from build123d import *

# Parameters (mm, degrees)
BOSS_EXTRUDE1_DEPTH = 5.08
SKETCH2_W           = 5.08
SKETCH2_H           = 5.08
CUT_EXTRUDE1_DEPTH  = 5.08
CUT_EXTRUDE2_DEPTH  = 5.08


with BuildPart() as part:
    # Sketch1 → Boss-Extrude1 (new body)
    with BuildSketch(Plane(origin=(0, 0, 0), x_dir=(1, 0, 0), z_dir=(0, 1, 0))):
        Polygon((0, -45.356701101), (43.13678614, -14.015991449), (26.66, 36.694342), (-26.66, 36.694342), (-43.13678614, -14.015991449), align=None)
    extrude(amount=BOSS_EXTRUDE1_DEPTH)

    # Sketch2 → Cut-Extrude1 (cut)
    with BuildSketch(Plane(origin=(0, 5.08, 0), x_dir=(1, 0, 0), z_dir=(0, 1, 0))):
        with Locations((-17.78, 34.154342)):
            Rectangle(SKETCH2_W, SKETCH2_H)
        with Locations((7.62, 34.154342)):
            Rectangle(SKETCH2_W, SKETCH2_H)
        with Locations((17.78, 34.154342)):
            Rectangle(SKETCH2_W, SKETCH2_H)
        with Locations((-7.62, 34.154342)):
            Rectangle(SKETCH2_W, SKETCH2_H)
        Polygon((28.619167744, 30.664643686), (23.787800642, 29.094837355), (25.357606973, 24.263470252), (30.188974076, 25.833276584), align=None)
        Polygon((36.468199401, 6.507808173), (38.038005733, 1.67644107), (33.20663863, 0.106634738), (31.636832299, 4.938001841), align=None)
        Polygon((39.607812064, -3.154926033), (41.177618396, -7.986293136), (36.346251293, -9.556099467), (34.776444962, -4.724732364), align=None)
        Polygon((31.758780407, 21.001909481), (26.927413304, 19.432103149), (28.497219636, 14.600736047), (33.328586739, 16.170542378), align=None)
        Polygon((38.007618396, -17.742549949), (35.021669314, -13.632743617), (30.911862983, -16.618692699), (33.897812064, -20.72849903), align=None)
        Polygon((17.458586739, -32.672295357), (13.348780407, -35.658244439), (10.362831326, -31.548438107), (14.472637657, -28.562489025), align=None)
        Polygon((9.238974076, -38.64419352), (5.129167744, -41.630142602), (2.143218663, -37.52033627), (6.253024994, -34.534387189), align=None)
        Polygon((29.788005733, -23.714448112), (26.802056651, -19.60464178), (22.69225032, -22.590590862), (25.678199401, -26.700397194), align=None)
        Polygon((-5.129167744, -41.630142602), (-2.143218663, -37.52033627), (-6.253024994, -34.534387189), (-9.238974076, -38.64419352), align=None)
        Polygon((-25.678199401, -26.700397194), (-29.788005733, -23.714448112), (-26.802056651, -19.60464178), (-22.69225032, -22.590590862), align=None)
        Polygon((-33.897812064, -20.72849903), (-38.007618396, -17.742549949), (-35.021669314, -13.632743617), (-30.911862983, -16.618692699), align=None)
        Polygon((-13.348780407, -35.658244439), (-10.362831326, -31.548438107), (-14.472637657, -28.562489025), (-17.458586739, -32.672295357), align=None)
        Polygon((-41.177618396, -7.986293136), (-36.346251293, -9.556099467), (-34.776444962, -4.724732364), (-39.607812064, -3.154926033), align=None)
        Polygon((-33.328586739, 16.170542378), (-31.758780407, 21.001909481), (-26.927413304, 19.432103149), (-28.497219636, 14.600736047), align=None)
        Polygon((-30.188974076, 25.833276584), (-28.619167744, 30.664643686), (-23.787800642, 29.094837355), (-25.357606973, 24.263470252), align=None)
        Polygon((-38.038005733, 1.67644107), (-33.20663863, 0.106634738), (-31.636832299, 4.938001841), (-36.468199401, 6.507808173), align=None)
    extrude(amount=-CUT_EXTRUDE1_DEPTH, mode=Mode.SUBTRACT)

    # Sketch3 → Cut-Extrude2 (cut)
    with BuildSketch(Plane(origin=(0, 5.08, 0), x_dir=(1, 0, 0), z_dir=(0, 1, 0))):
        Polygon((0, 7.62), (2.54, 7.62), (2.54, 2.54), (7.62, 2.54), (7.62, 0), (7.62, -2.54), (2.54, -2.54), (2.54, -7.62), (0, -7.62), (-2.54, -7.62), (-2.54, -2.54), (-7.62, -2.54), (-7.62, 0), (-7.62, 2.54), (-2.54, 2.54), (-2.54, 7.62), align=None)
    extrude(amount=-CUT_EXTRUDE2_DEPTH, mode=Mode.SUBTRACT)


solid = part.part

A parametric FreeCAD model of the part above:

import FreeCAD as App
import Part
import Sketcher
Q = App.Units.Quantity


def add_polygon(sketch, points):
    """Adds a closed chain of lines whose ends are joined by coincident constraints."""
    first, n = sketch.GeometryCount, len(points)
    for a, b in zip(points, points[1:] + points[:1]):
        sketch.addGeometry(Part.LineSegment(App.Vector(*a, 0), App.Vector(*b, 0)), False)
    for i in range(n):
        sketch.addConstraint(Sketcher.Constraint("Coincident", first + i, 2, first + (i + 1) % n, 1))

doc = App.newDocument("Part")
body = doc.addObject("PartDesign::Body", "Body")

sketch1 = doc.addObject("Sketcher::SketchObject", "Sketch")
body.addObject(sketch1)
sketch1.AttachmentSupport = (doc.XZ_Plane, [""])
sketch1.MapMode = "FlatFace"
add_polygon(sketch1, [(0, 45), (43, 14), (27, -37), (-27, -37), (-43, 14)])
sketch1.addConstraint([
    Sketcher.Constraint("Horizontal", 2),
    Sketcher.Constraint("Symmetric", 0, 2, 3, 2, -2),
    Sketcher.Constraint("PointOnObject", 4, 2, -2),
    Sketcher.Constraint("Equal", 0, 1),
    Sketcher.Constraint("Equal", 1, 3),
    Sketcher.Constraint("Angle", 0, Q("-36 deg")),
    Sketcher.Constraint("Angle", 1, Q("-108 deg")),
    Sketcher.Constraint("DistanceX", 2, 2, 2, 1, Q("53.32 mm")),
    Sketcher.Constraint("DistanceY", -1, 1, 4, 2, Q("45.356701 mm")),
])
pad1 = doc.addObject("PartDesign::Pad", "Pad")
body.addObject(pad1)
pad1.Profile = sketch1
pad1.Length = Q("0.2 in")
pad1.Reversed = True

sketch2 = doc.addObject("Sketcher::SketchObject", "Sketch001")
body.addObject(sketch2)
sketch2.AttachmentSupport = (doc.XZ_Plane, [""])
sketch2.MapMode = "FlatFace"
sketch2.AttachmentOffset = App.Placement(App.Vector(0, 0, -0.2 * 25.4), App.Rotation())
add_polygon(sketch2, [(-20, -37), (-20, -32), (-15, -32), (-15, -37)])
add_polygon(sketch2, [(5, -37), (5, -32), (10, -32), (10, -37)])
add_polygon(sketch2, [(15, -37), (15, -32), (20, -32), (20, -37)])
add_polygon(sketch2, [(-10, -37), (-10, -32), (-5, -32), (-5, -37)])
add_polygon(sketch2, [(29, -31), (24, -29), (25, -24), (30, -26)])
add_polygon(sketch2, [(38, -2), (36, -7), (32, -5), (33, 0)])
add_polygon(sketch2, [(41, 8), (40, 3), (35, 5), (36, 10)])
add_polygon(sketch2, [(32, -21), (27, -19), (28, -15), (33, -16)])
add_polygon(sketch2, [(38, 18), (35, 14), (31, 17), (34, 21)])
add_polygon(sketch2, [(13, 36), (17, 33), (14, 29), (10, 32)])
add_polygon(sketch2, [(5, 42), (9, 39), (6, 35), (2, 38)])
add_polygon(sketch2, [(30, 24), (27, 20), (23, 23), (26, 27)])
add_polygon(sketch2, [(-5, 42), (-2, 38), (-6, 35), (-9, 39)])
add_polygon(sketch2, [(-30, 24), (-26, 27), (-23, 23), (-27, 20)])
add_polygon(sketch2, [(-38, 18), (-34, 21), (-31, 17), (-35, 14)])
add_polygon(sketch2, [(-13, 36), (-10, 32), (-14, 29), (-17, 33)])
add_polygon(sketch2, [(-41, 8), (-36, 10), (-35, 5), (-40, 3)])
add_polygon(sketch2, [(-32, -21), (-33, -16), (-28, -15), (-27, -19)])
add_polygon(sketch2, [(-29, -31), (-30, -26), (-25, -24), (-24, -29)])
add_polygon(sketch2, [(-38, -2), (-33, 0), (-32, -5), (-36, -7)])
sketch2.addConstraint([
    Sketcher.Constraint("Vertical", 0),
    Sketcher.Constraint("Horizontal", 1),
    Sketcher.Constraint("Vertical", 2),
    Sketcher.Constraint("Horizontal", 3),
    Sketcher.Constraint("Vertical", 4),
    Sketcher.Constraint("Horizontal", 5),
    Sketcher.Constraint("Vertical", 6),
    Sketcher.Constraint("Horizontal", 7),
    Sketcher.Constraint("Vertical", 8),
    Sketcher.Constraint("Horizontal", 9),
    Sketcher.Constraint("Vertical", 10),
    Sketcher.Constraint("Horizontal", 11),
    Sketcher.Constraint("Vertical", 12),
    Sketcher.Constraint("Horizontal", 13),
    Sketcher.Constraint("Vertical", 14),
    Sketcher.Constraint("Horizontal", 15),
    Sketcher.Constraint("Symmetric", 1, 2, 8, 2, -2),
    Sketcher.Constraint("Symmetric", 3, 2, 10, 2, -2),
    Sketcher.Constraint("Symmetric", 5, 2, 12, 2, -2),
    Sketcher.Constraint("Symmetric", 7, 2, 14, 2, -2),
    Sketcher.Constraint("Symmetric", 42, 2, 48, 2, -2),
    Sketcher.Constraint("Symmetric", 41, 2, 49, 2, -2),
    Sketcher.Constraint("Symmetric", 40, 2, 50, 2, -2),
    Sketcher.Constraint("Symmetric", 43, 2, 51, 2, -2),
    Sketcher.Constraint("Symmetric", 46, 2, 52, 2, -2),
    Sketcher.Constraint("Symmetric", 45, 2, 53, 2, -2),
    Sketcher.Constraint("Symmetric", 44, 2, 54, 2, -2),
    Sketcher.Constraint("Symmetric", 47, 2, 55, 2, -2),
    Sketcher.Constraint("Symmetric", 34, 2, 56, 2, -2),
    Sketcher.Constraint("Symmetric", 33, 2, 57, 2, -2),
    Sketcher.Constraint("Symmetric", 32, 2, 58, 2, -2),
    Sketcher.Constraint("Symmetric", 35, 2, 59, 2, -2),
    Sketcher.Constraint("Symmetric", 38, 2, 60, 2, -2),
    Sketcher.Constraint("Symmetric", 37, 2, 61, 2, -2),
    Sketcher.Constraint("Symmetric", 36, 2, 62, 2, -2),
    Sketcher.Constraint("Symmetric", 39, 2, 63, 2, -2),
    Sketcher.Constraint("Symmetric", 26, 2, 64, 2, -2),
    Sketcher.Constraint("Symmetric", 25, 2, 65, 2, -2),
    Sketcher.Constraint("Symmetric", 24, 2, 66, 2, -2),
    Sketcher.Constraint("Symmetric", 27, 2, 67, 2, -2),
    Sketcher.Constraint("Symmetric", 30, 2, 68, 2, -2),
    Sketcher.Constraint("Symmetric", 29, 2, 69, 2, -2),
    Sketcher.Constraint("Symmetric", 28, 2, 70, 2, -2),
    Sketcher.Constraint("Symmetric", 31, 2, 71, 2, -2),
    Sketcher.Constraint("Symmetric", 18, 2, 72, 2, -2),
    Sketcher.Constraint("Symmetric", 17, 2, 73, 2, -2),
    Sketcher.Constraint("Symmetric", 16, 2, 74, 2, -2),
    Sketcher.Constraint("Symmetric", 19, 2, 75, 2, -2),
    Sketcher.Constraint("Symmetric", 22, 2, 76, 2, -2),
    Sketcher.Constraint("Symmetric", 21, 2, 77, 2, -2),
    Sketcher.Constraint("Symmetric", 20, 2, 78, 2, -2),
    Sketcher.Constraint("Symmetric", 23, 2, 79, 2, -2),
    Sketcher.Constraint("Perpendicular", 16, 17),
    Sketcher.Constraint("Perpendicular", 17, 18),
    Sketcher.Constraint("Perpendicular", 18, 19),
    Sketcher.Constraint("Parallel", 19, 20),
    Sketcher.Constraint("Perpendicular", 20, 21),
    Sketcher.Constraint("Perpendicular", 21, 22),
    Sketcher.Constraint("Perpendicular", 22, 23),
    Sketcher.Constraint("Perpendicular", 23, 24),
    Sketcher.Constraint("Perpendicular", 24, 25),
    Sketcher.Constraint("Perpendicular", 25, 26),
    Sketcher.Constraint("Perpendicular", 26, 27),
    Sketcher.Constraint("Parallel", 27, 28),
    Sketcher.Constraint("Perpendicular", 28, 29),
    Sketcher.Constraint("Perpendicular", 29, 30),
    Sketcher.Constraint("Perpendicular", 30, 31),
    Sketcher.Constraint("Perpendicular", 32, 33),
    Sketcher.Constraint("Perpendicular", 33, 34),
    Sketcher.Constraint("Perpendicular", 34, 35),
    Sketcher.Constraint("Parallel", 35, 36),
    Sketcher.Constraint("Perpendicular", 36, 37),
    Sketcher.Constraint("Perpendicular", 37, 38),
    Sketcher.Constraint("Perpendicular", 38, 39),
    Sketcher.Constraint("Perpendicular", 39, 40),
    Sketcher.Constraint("Perpendicular", 40, 41),
    Sketcher.Constraint("Perpendicular", 41, 42),
    Sketcher.Constraint("Perpendicular", 42, 43),
    Sketcher.Constraint("Parallel", 43, 44),
    Sketcher.Constraint("Perpendicular", 44, 45),
    Sketcher.Constraint("Perpendicular", 45, 46),
    Sketcher.Constraint("Perpendicular", 46, 47),
    Sketcher.Constraint("Horizontal", 1, 2, 4, 2),
    Sketcher.Constraint("Horizontal", 3, 2, 6, 2),
    Sketcher.Constraint("Equal", 3, 5),
    Sketcher.Constraint("Equal", 15, 0),
    Sketcher.Constraint("Equal", 16, 17),
    Sketcher.Constraint("Equal", 19, 20),
    Sketcher.Constraint("Equal", 20, 21),
    Sketcher.Constraint("Equal", 23, 24),
    Sketcher.Constraint("Equal", 24, 25),
    Sketcher.Constraint("Equal", 27, 28),
    Sketcher.Constraint("Equal", 28, 29),
    Sketcher.Constraint("Equal", 31, 32),
    Sketcher.Constraint("Equal", 32, 33),
    Sketcher.Constraint("Equal", 35, 36),
    Sketcher.Constraint("Equal", 36, 37),
    Sketcher.Constraint("Equal", 39, 40),
    Sketcher.Constraint("Equal", 40, 41),
    Sketcher.Constraint("Equal", 43, 44),
    Sketcher.Constraint("Equal", 44, 45),
    Sketcher.Constraint("DistanceX", 1, 1, 1, 2, Q("0.2 in")),
    Sketcher.Constraint("Angle", 16, Q("162 deg")),
    Sketcher.Constraint("Angle", 32, Q("-126 deg")),
    Sketcher.Constraint("Distance", 16, Q("0.2 in")),
    Sketcher.Constraint("DistanceX", 0, 2, -1, 1, Q("0.8 in")),
    Sketcher.Constraint("DistanceX", -1, 1, 4, 2, Q("0.2 in")),
    Sketcher.Constraint("DistanceX", -1, 1, 16, 2, Q("23.787801 mm")),
    Sketcher.Constraint("DistanceX", -1, 1, 20, 2, Q("36.468199 mm")),
    Sketcher.Constraint("DistanceY", 21, 2, -1, 1, Q("4.938002 mm")),
    Sketcher.Constraint("DistanceY", -1, 1, 26, 2, Q("9.556099 mm")),
    Sketcher.Constraint("DistanceY", -1, 1, 34, 2, Q("20.728499 mm")),
    Sketcher.Constraint("DistanceX", -1, 1, 46, 2, Q("25.678199 mm")),
    Sketcher.Constraint("DistanceY", 17, 2, -1, 1, Q("24.26347 mm")),
    Sketcher.Constraint("DistanceX", -1, 1, 26, 2, Q("36.346251 mm")),
    Sketcher.Constraint("DistanceX", -1, 1, 29, 2, Q("28.49722 mm")),
    Sketcher.Constraint("DistanceY", 31, 2, -1, 1, Q("21.001909 mm")),
    Sketcher.Constraint("DistanceX", -1, 1, 32, 2, Q("35.021669 mm")),
    Sketcher.Constraint("DistanceY", -1, 1, 37, 2, Q("28.562489 mm")),
    Sketcher.Constraint("DistanceX", -1, 1, 38, 2, Q("10.362831 mm")),
    Sketcher.Constraint("DistanceX", -1, 1, 42, 2, Q("2.143219 mm")),
    Sketcher.Constraint("DistanceY", -1, 1, 44, 2, Q("19.604642 mm")),
    Sketcher.Constraint("DistanceY", 0, 2, -1, 1, Q("31.614342 mm")),
    Sketcher.Constraint("DistanceY", -1, 1, 40, 2, Q("38.644194 mm")),
])
pocket1 = doc.addObject("PartDesign::Pocket", "Pocket")
body.addObject(pocket1)
pocket1.Profile = sketch2
pocket1.Length = Q("0.2 in")
pocket1.Reversed = True

sketch3 = doc.addObject("Sketcher::SketchObject", "Sketch002")
body.addObject(sketch3)
sketch3.AttachmentSupport = (doc.XZ_Plane, [""])
sketch3.MapMode = "FlatFace"
sketch3.AttachmentOffset = App.Placement(App.Vector(0, 0, -0.2 * 25.4), App.Rotation())
add_polygon(sketch3, [(3, -8), (-3, -8), (-3, -3), (-8, -3), (-8, 3), (-3, 3), (-3, 8), (3, 8), (3, 3), (8, 3), (8, -3), (3, -3)])
sketch3.addConstraint([
    Sketcher.Constraint("Horizontal", 0),
    Sketcher.Constraint("Vertical", 1),
    Sketcher.Constraint("Horizontal", 2),
    Sketcher.Constraint("Vertical", 3),
    Sketcher.Constraint("Horizontal", 4),
    Sketcher.Constraint("Vertical", 5),
    Sketcher.Constraint("Horizontal", 6),
    Sketcher.Constraint("Vertical", 7),
    Sketcher.Constraint("Horizontal", 8),
    Sketcher.Constraint("Vertical", 9),
    Sketcher.Constraint("Horizontal", 10),
    Sketcher.Constraint("Vertical", 11),
    Sketcher.Constraint("Symmetric", 0, 2, 6, 2, -1, 1),
    Sketcher.Constraint("Symmetric", 2, 2, 8, 2, -1, 1),
    Sketcher.Constraint("Symmetric", 4, 2, 10, 2, -1, 1),
    Sketcher.Constraint("Symmetric", 4, 2, 7, 2, -2),
    Sketcher.Constraint("Equal", 0, 2),
    Sketcher.Constraint("Equal", 10, 1),
    Sketcher.Constraint("Equal", 1, 3),
    Sketcher.Constraint("DistanceX", 0, 2, 0, 1, Q("0.2 in")),
])
pocket2 = doc.addObject("PartDesign::Pocket", "Pocket001")
body.addObject(pocket2)
pocket2.Profile = sketch3
pocket2.Length = Q("0.2 in")
pocket2.Reversed = True

doc.recompute()
